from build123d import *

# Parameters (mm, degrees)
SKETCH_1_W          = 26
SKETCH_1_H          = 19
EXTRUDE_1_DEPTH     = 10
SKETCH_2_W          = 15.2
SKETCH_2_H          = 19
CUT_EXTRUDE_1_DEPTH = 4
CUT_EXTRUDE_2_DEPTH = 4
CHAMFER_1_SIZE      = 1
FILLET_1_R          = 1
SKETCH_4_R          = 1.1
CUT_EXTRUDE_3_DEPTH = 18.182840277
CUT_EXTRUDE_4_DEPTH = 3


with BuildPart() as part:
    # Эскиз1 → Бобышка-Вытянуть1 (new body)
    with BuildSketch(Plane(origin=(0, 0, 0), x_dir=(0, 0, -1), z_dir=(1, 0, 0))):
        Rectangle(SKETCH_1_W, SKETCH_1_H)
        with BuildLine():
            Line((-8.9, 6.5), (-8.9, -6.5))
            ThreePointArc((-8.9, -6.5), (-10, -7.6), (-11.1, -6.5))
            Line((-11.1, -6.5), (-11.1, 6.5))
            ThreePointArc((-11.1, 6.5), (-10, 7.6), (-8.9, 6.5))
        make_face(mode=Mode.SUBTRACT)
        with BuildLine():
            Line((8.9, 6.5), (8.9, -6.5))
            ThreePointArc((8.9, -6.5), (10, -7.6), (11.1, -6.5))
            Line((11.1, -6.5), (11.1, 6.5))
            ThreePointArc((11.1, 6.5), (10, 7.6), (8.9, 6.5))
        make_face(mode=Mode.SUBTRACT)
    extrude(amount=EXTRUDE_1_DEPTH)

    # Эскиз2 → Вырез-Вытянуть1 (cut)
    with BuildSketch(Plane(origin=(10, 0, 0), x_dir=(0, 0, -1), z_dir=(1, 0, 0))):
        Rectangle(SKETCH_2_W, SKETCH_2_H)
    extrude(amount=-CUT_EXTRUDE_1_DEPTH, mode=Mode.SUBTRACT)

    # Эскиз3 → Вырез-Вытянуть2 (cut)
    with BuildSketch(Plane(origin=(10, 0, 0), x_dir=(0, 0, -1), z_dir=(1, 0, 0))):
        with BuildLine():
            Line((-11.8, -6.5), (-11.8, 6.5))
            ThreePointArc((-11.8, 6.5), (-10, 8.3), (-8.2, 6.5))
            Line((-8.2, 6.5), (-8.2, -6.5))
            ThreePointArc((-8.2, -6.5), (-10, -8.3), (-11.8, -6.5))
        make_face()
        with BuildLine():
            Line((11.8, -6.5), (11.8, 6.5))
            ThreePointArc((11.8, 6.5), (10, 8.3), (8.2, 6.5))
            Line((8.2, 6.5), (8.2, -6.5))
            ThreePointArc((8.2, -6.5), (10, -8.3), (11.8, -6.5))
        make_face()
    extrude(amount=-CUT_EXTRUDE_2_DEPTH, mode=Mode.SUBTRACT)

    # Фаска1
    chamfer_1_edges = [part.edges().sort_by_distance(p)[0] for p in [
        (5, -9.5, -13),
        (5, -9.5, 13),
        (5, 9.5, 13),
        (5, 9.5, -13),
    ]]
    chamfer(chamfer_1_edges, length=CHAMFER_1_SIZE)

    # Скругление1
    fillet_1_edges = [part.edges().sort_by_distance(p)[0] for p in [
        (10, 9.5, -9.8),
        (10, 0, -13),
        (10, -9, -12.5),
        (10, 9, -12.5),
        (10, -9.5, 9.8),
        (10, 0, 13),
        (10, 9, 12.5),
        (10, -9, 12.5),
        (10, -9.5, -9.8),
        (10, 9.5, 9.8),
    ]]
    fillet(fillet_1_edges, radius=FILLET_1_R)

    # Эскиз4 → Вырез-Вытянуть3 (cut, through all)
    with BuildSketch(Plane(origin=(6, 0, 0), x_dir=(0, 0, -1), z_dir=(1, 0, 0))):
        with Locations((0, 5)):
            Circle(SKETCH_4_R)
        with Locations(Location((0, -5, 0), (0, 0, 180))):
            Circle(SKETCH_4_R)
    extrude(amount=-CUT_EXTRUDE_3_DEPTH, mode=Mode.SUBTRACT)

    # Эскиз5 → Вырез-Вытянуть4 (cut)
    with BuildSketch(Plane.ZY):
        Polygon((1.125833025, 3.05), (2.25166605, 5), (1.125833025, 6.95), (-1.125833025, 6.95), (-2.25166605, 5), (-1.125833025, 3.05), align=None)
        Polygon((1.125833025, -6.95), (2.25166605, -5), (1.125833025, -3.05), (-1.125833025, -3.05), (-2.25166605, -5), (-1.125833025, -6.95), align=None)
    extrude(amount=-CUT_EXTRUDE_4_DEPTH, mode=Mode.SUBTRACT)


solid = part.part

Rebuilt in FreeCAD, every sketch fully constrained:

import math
import FreeCAD as App
import Part
import Sketcher

V = App.Vector
Q = App.Units.Quantity


def edges_at(feature, points):
    """Names of the edges that pass closest to the given points."""
    edges = feature.Shape.Edges
    near = lambda p: min(range(len(edges)), key=lambda i: edges[i].distToShape(Part.Vertex(*p))[0])
    return sorted({f"Edge{near(p) + 1}" for p in points})


def add_polygon(sketch, points):
    """Adds a closed chain of lines whose ends are joined by coincident constraints."""
    first, n = sketch.GeometryCount, len(points)
    for a, b in zip(points, points[1:] + points[:1]):
        sketch.addGeometry(Part.LineSegment(App.Vector(*a, 0), App.Vector(*b, 0)), False)
    for i in range(n):
        sketch.addConstraint(Sketcher.Constraint("Coincident", first + i, 2, first + (i + 1) % n, 1))

doc = App.newDocument("Part")
params = doc.addObject("Spreadsheet::Sheet", "Params")
for row, (alias, value) in enumerate([
    ("sketch1_radius", "1.1 mm"),
    ("sketch1_width", "19 mm"),
    ("sketch1_width2", "13 mm"),
    ("sketch1_height", "26 mm"),
    ("pad1_length", "10 mm"),
    ("sketch2_width", "19 mm"),
    ("sketch2_height", "15.2 mm"),
    ("pocket1_length", "4 mm"),
    ("sketch3_radius", "1.8 mm"),
    ("sketch3_width", "13 mm"),
    ("pocket2_length", "4 mm"),
    ("chamfer_size", "1 mm"),
    ("fillet_radius", "1 mm"),
    ("sketch4_diameter", "2.2 mm"),
    ("pocket4_length", "3 mm"),
], start=1):
    params.set(f"A{row}", alias)
    params.set(f"B{row}", "=" + value)
    params.setAlias(f"B{row}", alias)

body = doc.addObject("PartDesign::Body", "Body")

sketch1 = body.newObject("Sketcher::SketchObject", "Sketch")
sketch1.AttachmentSupport = (doc.getObject("YZ_Plane"), [""])
sketch1.MapMode = "FlatFace"
add_polygon(sketch1, [(9.5, 13), (-9.5, 13), (-9.5, -13), (9.5, -13)])
sketch1.addGeometry(Part.ArcOfCircle(Part.Circle(V(6.5, 10, 0), V(0, 0, 1), 1.1), math.radians(-90), math.radians(90)), False)
sketch1.addGeometry(Part.LineSegment(V(6.5, 8.9, 0), V(-6.5, 8.9, 0)), False)
sketch1.addGeometry(Part.ArcOfCircle(Part.Circle(V(-6.5, 10, 0), V(0, 0, 1), 1.1), math.radians(90), math.radians(270)), False)
sketch1.addGeometry(Part.LineSegment(V(-6.5, 11.1, 0), V(6.5, 11.1, 0)), False)
sketch1.addGeometry(Part.LineSegment(V(-6.5, -8.9, 0), V(6.5, -8.9, 0)), False)
sketch1.addGeometry(Part.ArcOfCircle(Part.Circle(V(6.5, -10, 0), V(0, 0, 1), 1.1), math.radians(-90), math.radians(90)), False)
sketch1.addGeometry(Part.LineSegment(V(6.5, -11.1, 0), V(-6.5, -11.1, 0)), False)
sketch1.addGeometry(Part.ArcOfCircle(Part.Circle(V(-6.5, -10, 0), V(0, 0, 1), 1.1), math.radians(90), math.radians(270)), False)
sketch1.addConstraint([
    Sketcher.Constraint("Tangent", 4, 1, 5, 1),
    Sketcher.Constraint("Tangent", 5, 2, 6, 2),
    Sketcher.Constraint("Tangent", 6, 1, 7, 1),
    Sketcher.Constraint("Tangent", 7, 2, 4, 2),
    Sketcher.Constraint("Tangent", 8, 2, 9, 2),
    Sketcher.Constraint("Tangent", 9, 1, 10, 1),
    Sketcher.Constraint("Tangent", 10, 2, 11, 2),
    Sketcher.Constraint("Tangent", 11, 1, 8, 1),
    Sketcher.Constraint("Horizontal", 0),
    Sketcher.Constraint("Vertical", 1),
    Sketcher.Constraint("Horizontal", 2),
    Sketcher.Constraint("Vertical", 3),
    Sketcher.Constraint("Horizontal", 5),
    Sketcher.Constraint("Horizontal", 7),
    Sketcher.Constraint("Horizontal", 8),
    Sketcher.Constraint("Horizontal", 10),
    Sketcher.Constraint("Equal", 6, 9),
    Sketcher.Constraint("Symmetric", 6, 3, 9, 3, -1, 1),
    Sketcher.Constraint("Symmetric", 0, 2, 2, 2, -1, 1),
    Sketcher.Constraint("Vertical", 4, 3, 9, 3),
    Sketcher.Constraint("Vertical", 6, 3, 11, 3),
    Sketcher.Constraint("Radius", 4, 1.1),
    Sketcher.Constraint("DistanceX", 0, 2, 0, 1, 19.0),
    Sketcher.Constraint("DistanceX", 5, 2, 5, 1, 13.0),
    Sketcher.Constraint("DistanceY", 1, 2, 1, 1, 26.0),
    Sketcher.Constraint("DistanceY", -1, 1, 4, 3, 10.0),
])
sketch1.setExpression("Constraints[25]", "Params.sketch1_radius")
sketch1.setExpression("Constraints[26]", "Params.sketch1_width")
sketch1.setExpression("Constraints[27]", "Params.sketch1_width2")
sketch1.setExpression("Constraints[28]", "Params.sketch1_height")
pad1 = body.newObject("PartDesign::Pad", "Pad")
pad1.Profile = sketch1
pad1.setExpression("Length", "Params.pad1_length")

sketch2 = body.newObject("Sketcher::SketchObject", "Sketch001")
sketch2.AttachmentSupport = (doc.getObject("YZ_Plane"), [""])
sketch2.MapMode = "FlatFace"
sketch2.AttachmentOffset = App.Placement(V(0, 0, 10), App.Rotation())
add_polygon(sketch2, [(9.5, 7.6), (-9.5, 7.6), (-9.5, -7.6), (9.5, -7.6)])
sketch2.addConstraint([
    Sketcher.Constraint("Horizontal", 0),
    Sketcher.Constraint("Vertical", 1),
    Sketcher.Constraint("Horizontal", 2),
    Sketcher.Constraint("Vertical", 3),
    Sketcher.Constraint("Symmetric", 0, 2, 2, 2, -1, 1),
    Sketcher.Constraint("DistanceX", 0, 2, 0, 1, 19.0),
    Sketcher.Constraint("DistanceY", 1, 2, 1, 1, 15.2),
])
sketch2.setExpression("Constraints[9]", "Params.sketch2_width")
sketch2.setExpression("Constraints[10]", "Params.sketch2_height")
pocket1 = body.newObject("PartDesign::Pocket", "Pocket")
pocket1.Profile = sketch2
pocket1.setExpression("Length", "Params.pocket1_length")

sketch3 = body.newObject("Sketcher::SketchObject", "Sketch002")
sketch3.AttachmentSupport = (doc.getObject("YZ_Plane"), [""])
sketch3.MapMode = "FlatFace"
sketch3.AttachmentOffset = App.Placement(V(0, 0, 10), App.Rotation())
sketch3.addGeometry([
    Part.LineSegment(V(6.5, 11.8, 0), V(-6.5, 11.8, 0)),
    Part.ArcOfCircle(Part.Circle(V(-6.5, 10, 0), V(0, 0, 1), 1.8), math.radians(90), math.radians(270)),
    Part.LineSegment(V(-6.5, 8.2, 0), V(6.5, 8.2, 0)),
    Part.ArcOfCircle(Part.Circle(V(6.5, 10, 0), V(0, 0, 1), 1.8), math.radians(-90), math.radians(90)),
    Part.LineSegment(V(-6.5, -11.8, 0), V(6.5, -11.8, 0)),
    Part.ArcOfCircle(Part.Circle(V(6.5, -10, 0), V(0, 0, 1), 1.8), math.radians(-90), math.radians(90)),
    Part.LineSegment(V(6.5, -8.2, 0), V(-6.5, -8.2, 0)),
    Part.ArcOfCircle(Part.Circle(V(-6.5, -10, 0), V(0, 0, 1), 1.8), math.radians(90), math.radians(270)),
], False)
sketch3.addConstraint([
    Sketcher.Constraint("Tangent", 0, 2, 1, 1),
    Sketcher.Constraint("Tangent", 1, 2, 2, 1),
    Sketcher.Constraint("Tangent", 2, 2, 3, 1),
    Sketcher.Constraint("Tangent", 3, 2, 0, 1),
    Sketcher.Constraint("Tangent", 4, 2, 5, 1),
    Sketcher.Constraint("Tangent", 5, 2, 6, 1),
    Sketcher.Constraint("Tangent", 6, 2, 7, 1),
    Sketcher.Constraint("Tangent", 7, 2, 4, 1),
    Sketcher.Constraint("Horizontal", 0),
    Sketcher.Constraint("Horizontal", 2),
    Sketcher.Constraint("Horizontal", 4),
    Sketcher.Constraint("Horizontal", 6),
    Sketcher.Constraint("Equal", 3, 5),
    Sketcher.Constraint("Symmetric", 1, 3, 5, 3, -1, 1),
    Sketcher.Constraint("Vertical", 3, 3, 5, 3),
    Sketcher.Constraint("Vertical", 1, 3, 7, 3),
    Sketcher.Constraint("Radius", 1, 1.8),
    Sketcher.Constraint("DistanceX", 0, 2, 0, 1, 13.0),
    Sketcher.Constraint("DistanceY", -1, 1, 1, 3, 10.0),
])
sketch3.setExpression("Constraints[16]", "Params.sketch3_radius")
sketch3.setExpression("Constraints[17]", "Params.sketch3_width")
pocket2 = body.newObject("PartDesign::Pocket", "Pocket001")
pocket2.Profile = sketch3
pocket2.setExpression("Length", "Params.pocket2_length")
doc.recompute()

chamfer = body.newObject("PartDesign::Chamfer", "Chamfer")
chamfer.Base = (pocket2, edges_at(pocket2, [
    (5, -9.5, -13),
    (5, -9.5, 13),
    (5, 9.5, 13),
    (5, 9.5, -13),
]))
chamfer.setExpression("Size", "Params.chamfer_size")
doc.recompute()

fillet = body.newObject("PartDesign::Fillet", "Fillet")
fillet.Base = (chamfer, edges_at(chamfer, [
    (10, 9.5, -9.8),
    (10, 0, -13),
    (10, -9, -12.5),
    (10, 9, -12.5),
    (10, -9.5, 9.8),
    (10, 0, 13),
    (10, 9, 12.5),
    (10, -9, 12.5),
    (10, -9.5, -9.8),
    (10, 9.5, 9.8),
]))
fillet.setExpression("Radius", "Params.fillet_radius")

sketch4 = body.newObject("Sketcher::SketchObject", "Sketch003")
sketch4.AttachmentSupport = (doc.getObject("YZ_Plane"), [""])
sketch4.MapMode = "FlatFace"
sketch4.AttachmentOffset = App.Placement(V(0, 0, 6), App.Rotation())
sketch4.addGeometry([
    Part.Circle(V(5, 0, 0), V(0, 0, 1), 1.1),
    Part.Circle(V(-5, 0, 0), V(0, 0, 1), 1.1),
], False)
sketch4.addConstraint([
    Sketcher.Constraint("Equal", 0, 1),
    Sketcher.Constraint("Symmetric", 0, 3, 1, 3, -1, 1),
    Sketcher.Constraint("PointOnObject", 0, 3, -1),
    Sketcher.Constraint("Diameter", 0, 2.2),
    Sketcher.Constraint("DistanceX", -1, 1, 0, 3, 5.0),
])
sketch4.setExpression("Constraints[3]", "Params.sketch4_diameter")
pocket3 = body.newObject("PartDesign::Pocket", "Pocket002")
pocket3.Profile = sketch4
pocket3.Type = "ThroughAll"

sketch5 = body.newObject("Sketcher::SketchObject", "Sketch004")
sketch5.AttachmentSupport = (doc.getObject("YZ_Plane"), [""])
sketch5.MapMode = "FlatFace"
add_polygon(sketch5, [(3.05, 1.125833), (5, 2.251666), (6.95, 1.125833), (6.95, -1.125833), (5, -2.251666), (3.05, -1.125833)])
add_polygon(sketch5, [(-6.95, 1.125833), (-5, 2.251666), (-3.05, 1.125833), (-3.05, -1.125833), (-5, -2.251666), (-6.95, -1.125833)])
sketch5.addConstraint([
    Sketcher.Constraint("Vertical", 2),
    Sketcher.Constraint("Vertical", 5),
    Sketcher.Constraint("Vertical", 8),
    Sketcher.Constraint("Vertical", 11),
    Sketcher.Constraint("Symmetric", 3, 2, 6, 2, -1, 1),
    Sketcher.Constraint("Symmetric", 4, 2, 7, 2, -1, 1),
    Sketcher.Constraint("Symmetric", 0, 2, 9, 2, -1, 1),
    Sketcher.Constraint("Symmetric", 1, 2, 10, 2, -1, 1),
    Sketcher.Constraint("Symmetric", 0, 2, 6, 2, -2),
    Sketcher.Constraint("Parallel", 0, 3),
    Sketcher.Constraint("Parallel", 1, 4),
    Sketcher.Constraint("Parallel", 3, 6),
    Sketcher.Constraint("Parallel", 6, 9),
    Sketcher.Constraint("Horizontal", 2, 2, 4, 2),
    Sketcher.Constraint("Horizontal", 1, 2, 5, 2),
    Sketcher.Constraint("Angle", 0, Q("30 deg")),
    Sketcher.Constraint("DistanceX", -1, 1, 0, 2, 5.0),
    Sketcher.Constraint("DistanceX", 4, 2, 2, 2, 3.9),
    Sketcher.Constraint("DistanceY", 2, 2, 0, 2, 3.377499),
])
pocket4 = body.newObject("PartDesign::Pocket", "Pocket003")
pocket4.Profile = sketch5
pocket4.setExpression("Length", "Params.pocket4_length")
pocket4.Reversed = True

doc.recompute()
